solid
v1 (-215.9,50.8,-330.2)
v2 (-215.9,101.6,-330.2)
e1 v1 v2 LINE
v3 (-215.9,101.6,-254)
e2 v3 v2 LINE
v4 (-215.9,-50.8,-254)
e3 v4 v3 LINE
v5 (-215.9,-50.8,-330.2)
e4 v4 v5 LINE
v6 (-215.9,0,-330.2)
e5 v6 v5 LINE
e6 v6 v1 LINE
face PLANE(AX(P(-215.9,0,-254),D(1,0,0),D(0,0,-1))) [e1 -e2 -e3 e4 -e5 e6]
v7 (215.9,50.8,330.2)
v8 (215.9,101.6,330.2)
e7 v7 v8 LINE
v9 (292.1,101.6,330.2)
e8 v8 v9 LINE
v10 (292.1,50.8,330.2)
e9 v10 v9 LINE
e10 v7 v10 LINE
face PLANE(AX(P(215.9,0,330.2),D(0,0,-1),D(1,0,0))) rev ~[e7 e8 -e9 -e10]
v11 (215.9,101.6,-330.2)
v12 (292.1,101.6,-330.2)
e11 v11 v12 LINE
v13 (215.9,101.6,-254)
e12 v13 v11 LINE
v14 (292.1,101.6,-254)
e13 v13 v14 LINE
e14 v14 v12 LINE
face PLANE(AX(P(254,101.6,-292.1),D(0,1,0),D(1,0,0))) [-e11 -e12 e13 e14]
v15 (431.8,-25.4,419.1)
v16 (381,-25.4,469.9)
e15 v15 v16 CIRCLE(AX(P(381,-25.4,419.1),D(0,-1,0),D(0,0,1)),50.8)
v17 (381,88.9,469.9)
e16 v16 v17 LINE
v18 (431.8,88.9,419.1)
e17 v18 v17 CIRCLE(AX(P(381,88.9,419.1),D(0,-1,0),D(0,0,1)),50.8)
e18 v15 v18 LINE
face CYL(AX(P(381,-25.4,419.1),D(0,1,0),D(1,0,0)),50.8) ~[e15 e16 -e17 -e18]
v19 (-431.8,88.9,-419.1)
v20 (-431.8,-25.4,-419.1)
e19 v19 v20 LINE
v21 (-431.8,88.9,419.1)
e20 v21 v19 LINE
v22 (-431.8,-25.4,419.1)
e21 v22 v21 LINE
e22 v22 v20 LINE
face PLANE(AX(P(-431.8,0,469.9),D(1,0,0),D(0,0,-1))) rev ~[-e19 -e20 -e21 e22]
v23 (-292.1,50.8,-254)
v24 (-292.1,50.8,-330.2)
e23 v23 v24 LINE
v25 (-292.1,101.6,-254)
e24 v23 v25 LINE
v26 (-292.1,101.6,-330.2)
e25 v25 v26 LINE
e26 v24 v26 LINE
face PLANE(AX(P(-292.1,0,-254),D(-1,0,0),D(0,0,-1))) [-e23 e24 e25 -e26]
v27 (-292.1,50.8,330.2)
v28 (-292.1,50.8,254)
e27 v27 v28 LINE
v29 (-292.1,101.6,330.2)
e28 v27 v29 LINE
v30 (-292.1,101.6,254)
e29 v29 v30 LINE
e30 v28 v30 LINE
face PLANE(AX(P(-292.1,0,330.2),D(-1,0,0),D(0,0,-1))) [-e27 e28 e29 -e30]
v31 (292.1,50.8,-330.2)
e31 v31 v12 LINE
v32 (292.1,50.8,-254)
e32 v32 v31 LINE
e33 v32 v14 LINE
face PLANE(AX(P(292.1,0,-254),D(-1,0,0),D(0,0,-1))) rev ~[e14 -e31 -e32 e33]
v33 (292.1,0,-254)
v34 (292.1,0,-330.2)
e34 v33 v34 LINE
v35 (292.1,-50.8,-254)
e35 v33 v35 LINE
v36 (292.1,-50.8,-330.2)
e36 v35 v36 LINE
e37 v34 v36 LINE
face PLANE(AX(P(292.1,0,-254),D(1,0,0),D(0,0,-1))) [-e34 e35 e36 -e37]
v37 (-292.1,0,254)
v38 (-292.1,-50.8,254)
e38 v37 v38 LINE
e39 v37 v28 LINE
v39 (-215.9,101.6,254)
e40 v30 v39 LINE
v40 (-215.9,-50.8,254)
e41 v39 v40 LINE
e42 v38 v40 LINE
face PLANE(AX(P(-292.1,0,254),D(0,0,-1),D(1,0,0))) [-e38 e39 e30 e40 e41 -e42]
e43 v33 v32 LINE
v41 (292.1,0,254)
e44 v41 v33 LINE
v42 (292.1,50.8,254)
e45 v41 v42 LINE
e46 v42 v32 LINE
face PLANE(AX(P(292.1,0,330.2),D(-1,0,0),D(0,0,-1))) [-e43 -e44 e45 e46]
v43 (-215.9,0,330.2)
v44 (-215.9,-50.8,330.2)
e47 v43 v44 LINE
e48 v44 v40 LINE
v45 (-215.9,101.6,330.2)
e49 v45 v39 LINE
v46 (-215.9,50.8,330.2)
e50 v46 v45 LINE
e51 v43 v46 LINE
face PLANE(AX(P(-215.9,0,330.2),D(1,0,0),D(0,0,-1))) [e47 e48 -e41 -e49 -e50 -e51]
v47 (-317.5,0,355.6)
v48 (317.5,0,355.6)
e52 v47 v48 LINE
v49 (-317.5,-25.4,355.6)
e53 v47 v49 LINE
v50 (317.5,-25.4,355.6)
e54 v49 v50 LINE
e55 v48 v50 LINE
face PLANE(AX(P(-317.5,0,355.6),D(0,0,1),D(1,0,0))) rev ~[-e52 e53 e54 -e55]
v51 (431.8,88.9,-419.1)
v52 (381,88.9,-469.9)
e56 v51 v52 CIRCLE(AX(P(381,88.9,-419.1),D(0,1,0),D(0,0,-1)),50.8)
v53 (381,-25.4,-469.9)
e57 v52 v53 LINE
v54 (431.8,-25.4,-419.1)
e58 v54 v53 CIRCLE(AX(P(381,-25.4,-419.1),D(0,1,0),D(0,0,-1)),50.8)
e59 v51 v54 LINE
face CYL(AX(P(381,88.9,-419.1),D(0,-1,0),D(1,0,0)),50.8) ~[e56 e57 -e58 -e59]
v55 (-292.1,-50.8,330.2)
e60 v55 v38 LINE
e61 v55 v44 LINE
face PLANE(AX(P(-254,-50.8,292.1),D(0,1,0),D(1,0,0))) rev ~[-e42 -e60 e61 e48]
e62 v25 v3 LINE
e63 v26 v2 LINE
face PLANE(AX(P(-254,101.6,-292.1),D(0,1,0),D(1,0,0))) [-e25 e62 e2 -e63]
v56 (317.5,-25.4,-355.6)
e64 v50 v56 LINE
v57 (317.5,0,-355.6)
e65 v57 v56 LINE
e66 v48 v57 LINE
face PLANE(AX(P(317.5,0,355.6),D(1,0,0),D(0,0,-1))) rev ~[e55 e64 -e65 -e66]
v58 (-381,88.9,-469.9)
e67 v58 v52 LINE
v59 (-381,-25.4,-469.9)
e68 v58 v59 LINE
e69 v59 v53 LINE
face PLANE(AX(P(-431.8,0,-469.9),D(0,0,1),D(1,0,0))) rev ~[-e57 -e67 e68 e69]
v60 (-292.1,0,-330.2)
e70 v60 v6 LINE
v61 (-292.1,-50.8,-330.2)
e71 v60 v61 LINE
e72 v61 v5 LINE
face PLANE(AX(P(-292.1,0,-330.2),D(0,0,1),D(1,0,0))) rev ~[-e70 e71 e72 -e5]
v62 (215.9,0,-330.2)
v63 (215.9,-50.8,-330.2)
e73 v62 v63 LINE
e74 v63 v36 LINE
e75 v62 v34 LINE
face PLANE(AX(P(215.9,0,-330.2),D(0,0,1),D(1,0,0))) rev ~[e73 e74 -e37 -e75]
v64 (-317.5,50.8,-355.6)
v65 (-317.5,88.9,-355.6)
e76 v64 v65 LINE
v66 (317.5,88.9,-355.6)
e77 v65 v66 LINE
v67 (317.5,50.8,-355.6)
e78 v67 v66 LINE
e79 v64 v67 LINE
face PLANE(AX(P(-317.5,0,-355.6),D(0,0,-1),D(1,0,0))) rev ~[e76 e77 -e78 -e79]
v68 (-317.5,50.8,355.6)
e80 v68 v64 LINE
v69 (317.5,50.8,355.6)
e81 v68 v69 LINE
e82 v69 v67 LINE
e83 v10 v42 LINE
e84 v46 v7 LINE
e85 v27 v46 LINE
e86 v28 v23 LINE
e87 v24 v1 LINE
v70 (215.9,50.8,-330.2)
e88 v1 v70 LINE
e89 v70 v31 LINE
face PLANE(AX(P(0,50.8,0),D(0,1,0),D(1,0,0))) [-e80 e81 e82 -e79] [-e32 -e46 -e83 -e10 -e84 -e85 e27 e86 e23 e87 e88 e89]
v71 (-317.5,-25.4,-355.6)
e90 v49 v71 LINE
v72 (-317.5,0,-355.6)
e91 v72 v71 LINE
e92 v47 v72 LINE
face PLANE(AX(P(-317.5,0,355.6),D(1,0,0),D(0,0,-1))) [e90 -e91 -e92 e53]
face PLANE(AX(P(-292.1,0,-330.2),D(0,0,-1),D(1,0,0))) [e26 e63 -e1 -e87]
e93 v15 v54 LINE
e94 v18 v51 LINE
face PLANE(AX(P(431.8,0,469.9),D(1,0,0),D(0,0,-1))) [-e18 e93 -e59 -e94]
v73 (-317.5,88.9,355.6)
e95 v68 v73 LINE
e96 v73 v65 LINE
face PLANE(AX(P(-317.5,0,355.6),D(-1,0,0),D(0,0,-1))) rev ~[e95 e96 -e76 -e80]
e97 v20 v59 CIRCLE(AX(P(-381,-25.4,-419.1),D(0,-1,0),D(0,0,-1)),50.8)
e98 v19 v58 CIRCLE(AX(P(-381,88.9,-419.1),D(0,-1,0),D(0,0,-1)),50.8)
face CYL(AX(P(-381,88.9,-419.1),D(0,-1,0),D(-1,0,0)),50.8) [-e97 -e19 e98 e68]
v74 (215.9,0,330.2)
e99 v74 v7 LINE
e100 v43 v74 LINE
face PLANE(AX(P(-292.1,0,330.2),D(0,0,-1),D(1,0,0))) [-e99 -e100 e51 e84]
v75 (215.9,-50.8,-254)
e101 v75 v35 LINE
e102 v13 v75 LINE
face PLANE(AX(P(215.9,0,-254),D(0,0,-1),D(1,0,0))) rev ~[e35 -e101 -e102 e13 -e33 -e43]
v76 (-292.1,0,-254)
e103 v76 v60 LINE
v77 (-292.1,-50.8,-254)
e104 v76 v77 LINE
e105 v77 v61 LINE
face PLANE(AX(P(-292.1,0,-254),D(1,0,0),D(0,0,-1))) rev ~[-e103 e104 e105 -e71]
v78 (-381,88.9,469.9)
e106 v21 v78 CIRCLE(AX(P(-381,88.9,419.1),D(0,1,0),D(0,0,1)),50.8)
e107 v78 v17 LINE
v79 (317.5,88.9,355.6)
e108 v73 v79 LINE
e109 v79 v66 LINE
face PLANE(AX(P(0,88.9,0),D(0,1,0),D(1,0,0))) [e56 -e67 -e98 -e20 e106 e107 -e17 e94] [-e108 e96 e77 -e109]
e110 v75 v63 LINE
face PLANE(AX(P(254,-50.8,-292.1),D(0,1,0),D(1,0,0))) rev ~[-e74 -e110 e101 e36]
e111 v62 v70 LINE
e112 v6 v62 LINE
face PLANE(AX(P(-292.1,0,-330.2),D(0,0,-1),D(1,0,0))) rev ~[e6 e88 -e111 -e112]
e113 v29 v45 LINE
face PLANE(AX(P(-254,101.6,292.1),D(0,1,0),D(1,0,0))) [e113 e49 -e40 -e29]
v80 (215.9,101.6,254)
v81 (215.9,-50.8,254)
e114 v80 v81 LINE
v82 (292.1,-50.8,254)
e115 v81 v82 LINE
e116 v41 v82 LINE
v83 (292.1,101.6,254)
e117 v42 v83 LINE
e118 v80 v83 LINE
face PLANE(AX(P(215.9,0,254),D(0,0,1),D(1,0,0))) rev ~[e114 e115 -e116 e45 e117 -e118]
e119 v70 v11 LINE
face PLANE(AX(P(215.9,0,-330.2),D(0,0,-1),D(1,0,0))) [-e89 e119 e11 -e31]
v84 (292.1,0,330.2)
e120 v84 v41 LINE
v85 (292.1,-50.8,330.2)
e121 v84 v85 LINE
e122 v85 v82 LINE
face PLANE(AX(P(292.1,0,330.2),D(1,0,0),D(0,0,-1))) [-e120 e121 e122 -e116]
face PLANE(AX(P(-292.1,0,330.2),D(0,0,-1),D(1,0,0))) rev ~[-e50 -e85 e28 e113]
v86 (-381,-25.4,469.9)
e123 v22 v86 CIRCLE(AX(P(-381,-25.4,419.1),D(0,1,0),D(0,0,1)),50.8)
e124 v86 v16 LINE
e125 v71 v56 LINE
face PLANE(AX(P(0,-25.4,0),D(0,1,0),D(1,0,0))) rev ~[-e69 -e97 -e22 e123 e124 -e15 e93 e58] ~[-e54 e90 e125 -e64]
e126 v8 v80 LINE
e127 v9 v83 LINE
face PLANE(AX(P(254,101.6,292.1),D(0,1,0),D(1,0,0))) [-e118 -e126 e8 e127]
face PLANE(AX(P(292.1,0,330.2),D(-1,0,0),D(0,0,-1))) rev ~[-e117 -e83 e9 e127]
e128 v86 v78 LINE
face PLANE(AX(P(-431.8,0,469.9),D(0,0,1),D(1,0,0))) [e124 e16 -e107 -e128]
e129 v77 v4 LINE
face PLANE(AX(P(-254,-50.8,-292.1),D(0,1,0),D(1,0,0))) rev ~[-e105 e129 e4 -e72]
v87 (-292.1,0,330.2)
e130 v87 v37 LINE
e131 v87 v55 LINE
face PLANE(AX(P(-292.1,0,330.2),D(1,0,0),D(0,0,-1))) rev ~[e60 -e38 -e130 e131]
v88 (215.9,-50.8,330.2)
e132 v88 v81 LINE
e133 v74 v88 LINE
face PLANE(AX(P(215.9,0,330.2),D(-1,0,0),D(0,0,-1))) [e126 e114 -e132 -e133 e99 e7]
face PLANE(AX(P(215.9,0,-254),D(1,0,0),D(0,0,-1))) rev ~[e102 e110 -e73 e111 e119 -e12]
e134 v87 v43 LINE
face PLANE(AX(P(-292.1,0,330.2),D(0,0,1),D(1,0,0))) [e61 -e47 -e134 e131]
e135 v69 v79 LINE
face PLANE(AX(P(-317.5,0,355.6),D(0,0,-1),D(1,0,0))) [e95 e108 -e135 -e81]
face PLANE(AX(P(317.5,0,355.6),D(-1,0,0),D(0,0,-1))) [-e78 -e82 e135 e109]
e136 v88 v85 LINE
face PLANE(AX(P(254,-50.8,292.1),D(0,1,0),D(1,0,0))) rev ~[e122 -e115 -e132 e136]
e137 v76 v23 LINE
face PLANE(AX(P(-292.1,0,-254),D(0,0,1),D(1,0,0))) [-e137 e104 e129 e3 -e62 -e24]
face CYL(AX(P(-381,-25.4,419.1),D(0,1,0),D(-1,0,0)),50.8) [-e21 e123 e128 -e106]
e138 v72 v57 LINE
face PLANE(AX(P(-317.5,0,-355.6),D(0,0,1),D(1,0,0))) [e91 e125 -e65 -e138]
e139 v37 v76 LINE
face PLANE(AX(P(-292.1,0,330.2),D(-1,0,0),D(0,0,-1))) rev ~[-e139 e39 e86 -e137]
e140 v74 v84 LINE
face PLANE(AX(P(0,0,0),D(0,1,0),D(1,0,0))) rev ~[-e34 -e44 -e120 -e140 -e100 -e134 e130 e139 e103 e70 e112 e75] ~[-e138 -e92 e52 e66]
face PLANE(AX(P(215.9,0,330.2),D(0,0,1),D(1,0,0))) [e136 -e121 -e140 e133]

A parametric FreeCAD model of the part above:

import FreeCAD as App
import Part
import Sketcher
Q = App.Units.Quantity


def edges_at(feature, points):
    """Names of the edges that pass closest to the given points."""
    edges = feature.Shape.Edges
    near = lambda p: min(range(len(edges)), key=lambda i: edges[i].distToShape(Part.Vertex(*p))[0])
    return sorted({f"Edge{near(p) + 1}" for p in points})

doc = App.newDocument("Part")
body = doc.addObject("PartDesign::Body", "Body")

sketch1 = doc.addObject("Sketcher::SketchObject", "Sketch")
body.addObject(sketch1)
sketch1.AttachmentSupport = (doc.XZ_Plane, [""])
sketch1.MapMode = "FlatFace"
sketch1.addGeometry([
    Part.LineSegment(App.Vector(-318, -356, 0), App.Vector(-318, 356, 0)),
    Part.LineSegment(App.Vector(-318, 356, 0), App.Vector(318, 356, 0)),
    Part.LineSegment(App.Vector(318, 356, 0), App.Vector(318, -356, 0)),
    Part.LineSegment(App.Vector(318, -356, 0), App.Vector(-318, -356, 0)),
    Part.LineSegment(App.Vector(292, 330, 0), App.Vector(-292, 330, 0)),
    Part.LineSegment(App.Vector(-292, 330, 0), App.Vector(-292, -330, 0)),
    Part.LineSegment(App.Vector(-292, -330, 0), App.Vector(292, -330, 0)),
    Part.LineSegment(App.Vector(292, -330, 0), App.Vector(292, 330, 0)),
], False)
sketch1.addConstraint([
    Sketcher.Constraint("Coincident", 0, 2, 1, 1),
    Sketcher.Constraint("Coincident", 1, 2, 2, 1),
    Sketcher.Constraint("Coincident", 2, 2, 3, 1),
    Sketcher.Constraint("Coincident", 3, 2, 0, 1),
    Sketcher.Constraint("Coincident", 4, 2, 5, 1),
    Sketcher.Constraint("Coincident", 5, 2, 6, 1),
    Sketcher.Constraint("Coincident", 6, 2, 7, 1),
    Sketcher.Constraint("Coincident", 7, 2, 4, 1),
    Sketcher.Constraint("Vertical", 0),
    Sketcher.Constraint("Horizontal", 1),
    Sketcher.Constraint("Vertical", 2),
    Sketcher.Constraint("Horizontal", 3),
    Sketcher.Constraint("Horizontal", 4),
    Sketcher.Constraint("Vertical", 5),
    Sketcher.Constraint("Horizontal", 6),
    Sketcher.Constraint("Vertical", 7),
    Sketcher.Constraint("Symmetric", 0, 2, 2, 2, -1, 1),
    Sketcher.Constraint("Symmetric", 4, 2, 6, 2, -1, 1),
    Sketcher.Constraint("DistanceX", 1, 1, 1, 2, Q("25 in")),
    Sketcher.Constraint("DistanceX", 4, 2, 4, 1, Q("23 in")),
    Sketcher.Constraint("DistanceY", 0, 1, 0, 2, Q("28 in")),
    Sketcher.Constraint("DistanceY", 5, 2, 5, 1, Q("26 in")),
])
pad1 = doc.addObject("PartDesign::Pad", "Pad")
body.addObject(pad1)
pad1.Profile = sketch1
pad1.Length = Q("2 in")
pad1.Reversed = True

sketch2 = doc.addObject("Sketcher::SketchObject", "Sketch001")
body.addObject(sketch2)
sketch2.AttachmentSupport = (doc.XZ_Plane, [""])
sketch2.MapMode = "FlatFace"
sketch2.addGeometry([
    Part.LineSegment(App.Vector(-292, -330, 0), App.Vector(-292, -254, 0)),
    Part.LineSegment(App.Vector(-292, -254, 0), App.Vector(-216, -254, 0)),
    Part.LineSegment(App.Vector(-216, -254, 0), App.Vector(-216, -330, 0)),
    Part.LineSegment(App.Vector(-216, -330, 0), App.Vector(-292, -330, 0)),
    Part.LineSegment(App.Vector(216, -330, 0), App.Vector(216, -254, 0)),
    Part.LineSegment(App.Vector(216, -254, 0), App.Vector(292, -254, 0)),
    Part.LineSegment(App.Vector(292, -254, 0), App.Vector(292, -330, 0)),
    Part.LineSegment(App.Vector(292, -330, 0), App.Vector(216, -330, 0)),
    Part.LineSegment(App.Vector(216, 254, 0), App.Vector(216, 330, 0)),
    Part.LineSegment(App.Vector(216, 330, 0), App.Vector(292, 330, 0)),
    Part.LineSegment(App.Vector(292, 330, 0), App.Vector(292, 254, 0)),
    Part.LineSegment(App.Vector(292, 254, 0), App.Vector(216, 254, 0)),
    Part.LineSegment(App.Vector(-292, 254, 0), App.Vector(-292, 330, 0)),
    Part.LineSegment(App.Vector(-292, 330, 0), App.Vector(-216, 330, 0)),
    Part.LineSegment(App.Vector(-216, 330, 0), App.Vector(-216, 254, 0)),
    Part.LineSegment(App.Vector(-216, 254, 0), App.Vector(-292, 254, 0)),
], False)
sketch2.addConstraint([
    Sketcher.Constraint("Coincident", 0, 2, 1, 1),
    Sketcher.Constraint("Coincident", 1, 2, 2, 1),
    Sketcher.Constraint("Coincident", 2, 2, 3, 1),
    Sketcher.Constraint("Coincident", 3, 2, 0, 1),
    Sketcher.Constraint("Coincident", 4, 2, 5, 1),
    Sketcher.Constraint("Coincident", 5, 2, 6, 1),
    Sketcher.Constraint("Coincident", 6, 2, 7, 1),
    Sketcher.Constraint("Coincident", 7, 2, 4, 1),
    Sketcher.Constraint("Coincident", 8, 2, 9, 1),
    Sketcher.Constraint("Coincident", 9, 2, 10, 1),
    Sketcher.Constraint("Coincident", 10, 2, 11, 1),
    Sketcher.Constraint("Coincident", 11, 2, 8, 1),
    Sketcher.Constraint("Coincident", 12, 2, 13, 1),
    Sketcher.Constraint("Coincident", 13, 2, 14, 1),
    Sketcher.Constraint("Coincident", 14, 2, 15, 1),
    Sketcher.Constraint("Coincident", 15, 2, 12, 1),
    Sketcher.Constraint("Vertical", 0),
    Sketcher.Constraint("Horizontal", 1),
    Sketcher.Constraint("Vertical", 2),
    Sketcher.Constraint("Horizontal", 3),
    Sketcher.Constraint("Vertical", 4),
    Sketcher.Constraint("Horizontal", 5),
    Sketcher.Constraint("Vertical", 6),
    Sketcher.Constraint("Horizontal", 7),
    Sketcher.Constraint("Vertical", 8),
    Sketcher.Constraint("Horizontal", 9),
    Sketcher.Constraint("Vertical", 10),
    Sketcher.Constraint("Horizontal", 11),
    Sketcher.Constraint("Vertical", 12),
    Sketcher.Constraint("Horizontal", 13),
    Sketcher.Constraint("Vertical", 14),
    Sketcher.Constraint("Horizontal", 15),
    Sketcher.Constraint("Symmetric", 2, 2, 8, 2, -1, 1),
    Sketcher.Constraint("Symmetric", 0, 2, 10, 2, -1, 1),
    Sketcher.Constraint("Symmetric", 6, 2, 12, 2, -1, 1),
    Sketcher.Constraint("Symmetric", 4, 2, 14, 2, -1, 1),
    Sketcher.Constraint("Symmetric", 1, 2, 4, 2, -2),
    Sketcher.Constraint("Symmetric", 3, 2, 6, 2, -2),
    Sketcher.Constraint("Equal", 15, 0),
    Sketcher.Constraint("DistanceX", 1, 1, 1, 2, Q("3 in")),
    Sketcher.Constraint("DistanceY", 0, 2, -1, 1, Q("10 in")),
    Sketcher.Constraint("DistanceX", 1, 2, 4, 2, Q("17 in")),
])
pad2 = doc.addObject("PartDesign::Pad", "Pad001")
body.addObject(pad2)
pad2.Profile = sketch2
pad2.Type = "TwoLengths"
pad2.Length = Q("4 in")
pad2.Length2 = Q("2 in")
pad2.Reversed = True

sketch3 = doc.addObject("Sketcher::SketchObject", "Sketch002")
body.addObject(sketch3)
sketch3.AttachmentSupport = (doc.XZ_Plane, [""])
sketch3.MapMode = "FlatFace"
sketch3.addGeometry([
    Part.LineSegment(App.Vector(-432, -470, 0), App.Vector(-432, 470, 0)),
    Part.LineSegment(App.Vector(-432, 470, 0), App.Vector(432, 470, 0)),
    Part.LineSegment(App.Vector(432, 470, 0), App.Vector(432, -470, 0)),
    Part.LineSegment(App.Vector(432, -470, 0), App.Vector(-432, -470, 0)),
    Part.LineSegment(App.Vector(318, 356, 0), App.Vector(-318, 356, 0)),
    Part.LineSegment(App.Vector(-318, 356, 0), App.Vector(-318, -356, 0)),
    Part.LineSegment(App.Vector(-318, -356, 0), App.Vector(318, -356, 0)),
    Part.LineSegment(App.Vector(318, -356, 0), App.Vector(318, 356, 0)),
], False)
sketch3.addConstraint([
    Sketcher.Constraint("Coincident", 0, 2, 1, 1),
    Sketcher.Constraint("Coincident", 1, 2, 2, 1),
    Sketcher.Constraint("Coincident", 2, 2, 3, 1),
    Sketcher.Constraint("Coincident", 3, 2, 0, 1),
    Sketcher.Constraint("Coincident", 4, 2, 5, 1),
    Sketcher.Constraint("Coincident", 5, 2, 6, 1),
    Sketcher.Constraint("Coincident", 6, 2, 7, 1),
    Sketcher.Constraint("Coincident", 7, 2, 4, 1),
    Sketcher.Constraint("Vertical", 0),
    Sketcher.Constraint("Horizontal", 1),
    Sketcher.Constraint("Vertical", 2),
    Sketcher.Constraint("Horizontal", 3),
    Sketcher.Constraint("Horizontal", 4),
    Sketcher.Constraint("Vertical", 5),
    Sketcher.Constraint("Horizontal", 6),
    Sketcher.Constraint("Vertical", 7),
    Sketcher.Constraint("Symmetric", 0, 2, 2, 2, -1, 1),
    Sketcher.Constraint("Symmetric", 4, 2, 6, 2, -1, 1),
    Sketcher.Constraint("DistanceX", 1, 1, 1, 2, Q("34 in")),
    Sketcher.Constraint("DistanceX", 4, 2, 4, 1, Q("25 in")),
    Sketcher.Constraint("DistanceY", 0, 1, 0, 2, Q("37 in")),
    Sketcher.Constraint("DistanceY", 5, 2, 5, 1, Q("28 in")),
])
pad3 = doc.addObject("PartDesign::Pad", "Pad002")
body.addObject(pad3)
pad3.Profile = sketch3
pad3.Type = "TwoLengths"
pad3.Length = Q("3.5 in")
pad3.Length2 = Q("1 in")
pad3.Reversed = True
doc.recompute()

fillet = doc.addObject("PartDesign::Fillet", "Fillet")
body.addObject(fillet)
fillet.Base = (pad3, edges_at(pad3, [
    (-431.8, 31.75, 469.9),
    (-431.8, 31.75, -469.9),
    (431.8, 31.75, -469.9),
    (431.8, 31.75, 469.9),
]))
fillet.Radius = Q("2 in")

doc.recompute()
